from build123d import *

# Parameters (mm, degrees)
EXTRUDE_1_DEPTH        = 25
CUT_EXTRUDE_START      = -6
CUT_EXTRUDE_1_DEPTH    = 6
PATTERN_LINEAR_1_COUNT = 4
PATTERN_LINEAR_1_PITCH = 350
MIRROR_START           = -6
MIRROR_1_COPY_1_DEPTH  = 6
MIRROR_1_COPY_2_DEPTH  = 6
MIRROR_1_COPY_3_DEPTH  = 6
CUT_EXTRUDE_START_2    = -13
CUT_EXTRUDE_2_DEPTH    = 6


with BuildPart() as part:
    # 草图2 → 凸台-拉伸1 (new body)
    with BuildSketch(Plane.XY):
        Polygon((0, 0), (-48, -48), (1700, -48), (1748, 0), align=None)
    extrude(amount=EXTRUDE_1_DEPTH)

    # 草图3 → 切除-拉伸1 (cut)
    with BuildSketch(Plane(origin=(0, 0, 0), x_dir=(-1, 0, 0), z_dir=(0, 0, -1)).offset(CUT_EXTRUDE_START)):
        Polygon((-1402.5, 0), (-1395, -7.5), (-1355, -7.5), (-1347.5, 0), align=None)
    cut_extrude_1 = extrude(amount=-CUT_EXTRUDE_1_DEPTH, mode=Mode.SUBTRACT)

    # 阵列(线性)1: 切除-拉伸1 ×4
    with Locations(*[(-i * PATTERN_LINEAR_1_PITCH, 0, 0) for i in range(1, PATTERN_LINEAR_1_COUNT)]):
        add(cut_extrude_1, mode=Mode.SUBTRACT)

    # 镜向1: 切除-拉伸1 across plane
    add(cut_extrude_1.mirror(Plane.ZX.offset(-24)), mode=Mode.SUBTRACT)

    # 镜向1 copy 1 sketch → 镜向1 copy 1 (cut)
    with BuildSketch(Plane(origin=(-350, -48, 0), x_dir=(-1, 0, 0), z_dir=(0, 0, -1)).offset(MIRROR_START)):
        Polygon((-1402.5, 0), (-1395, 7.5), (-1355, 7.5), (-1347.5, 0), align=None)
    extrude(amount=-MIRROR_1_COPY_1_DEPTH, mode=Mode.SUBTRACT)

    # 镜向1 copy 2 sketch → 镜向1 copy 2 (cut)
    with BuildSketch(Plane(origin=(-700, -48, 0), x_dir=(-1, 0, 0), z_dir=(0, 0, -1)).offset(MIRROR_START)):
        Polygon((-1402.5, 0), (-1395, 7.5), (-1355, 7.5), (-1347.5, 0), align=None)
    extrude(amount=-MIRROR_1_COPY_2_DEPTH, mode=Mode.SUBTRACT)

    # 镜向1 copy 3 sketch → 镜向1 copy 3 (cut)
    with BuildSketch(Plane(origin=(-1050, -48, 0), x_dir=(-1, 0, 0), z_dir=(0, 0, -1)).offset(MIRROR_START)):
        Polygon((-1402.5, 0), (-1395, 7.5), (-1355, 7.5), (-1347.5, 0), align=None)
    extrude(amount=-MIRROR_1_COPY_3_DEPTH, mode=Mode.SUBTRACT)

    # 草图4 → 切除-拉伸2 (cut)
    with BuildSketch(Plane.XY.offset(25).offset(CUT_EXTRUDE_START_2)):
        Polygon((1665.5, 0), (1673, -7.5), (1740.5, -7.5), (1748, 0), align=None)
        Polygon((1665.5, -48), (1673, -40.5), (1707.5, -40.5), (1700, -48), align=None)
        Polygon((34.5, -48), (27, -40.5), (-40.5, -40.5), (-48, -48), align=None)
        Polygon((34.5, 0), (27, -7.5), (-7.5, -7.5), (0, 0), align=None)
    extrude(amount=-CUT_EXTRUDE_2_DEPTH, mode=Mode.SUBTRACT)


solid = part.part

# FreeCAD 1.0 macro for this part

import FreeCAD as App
import Part
import Sketcher
from FreeCAD import Vector
Q = App.Units.Quantity


def add_polygon(sketch, points):
    """Adds a closed chain of lines whose ends are joined by coincident constraints."""
    first, n = sketch.GeometryCount, len(points)
    for a, b in zip(points, points[1:] + points[:1]):
        sketch.addGeometry(Part.LineSegment(App.Vector(*a, 0), App.Vector(*b, 0)), False)
    for i in range(n):
        sketch.addConstraint(Sketcher.Constraint("Coincident", first + i, 2, first + (i + 1) % n, 1))

doc = App.newDocument("Part")
params = doc.addObject("Spreadsheet::Sheet", "Params")
for row, (alias, value) in enumerate([
    ("sketch1_width", "1748 mm"),
    ("pad1_length", "25 mm"),
    ("sketch2_width", "40 mm"),
    ("sketch2_width2", "55 mm"),
    ("pocket1_length", "6 mm"),
    ("linearpattern_pitch", "350 mm"),
    ("sketch3_width", "55 mm"),
    ("sketch3_width2", "40 mm"),
    ("pocket2_length", "6 mm"),
    ("sketch4_width", "55 mm"),
    ("sketch4_width2", "40 mm"),
    ("pocket3_length", "6 mm"),
    ("sketch5_width", "55 mm"),
    ("sketch5_width2", "40 mm"),
    ("pocket4_length", "6 mm"),
    ("sketch6_width", "67.5 mm"),
    ("sketch6_width2", "82.5 mm"),
    ("sketch6_width3", "34.5 mm"),
    ("pocket5_length", "6 mm"),
], start=1):
    params.set(f"A{row}", alias)
    params.set(f"B{row}", "=" + value)
    params.setAlias(f"B{row}", alias)

body = doc.addObject("PartDesign::Body", "Body")

# Sketch on XY plane
sketch1 = body.newObject("Sketcher::SketchObject", "Sketch")
sketch1.AttachmentSupport = (doc.getObject("XY_Plane"), [""])
sketch1.MapMode = "FlatFace"
add_polygon(sketch1, [(0, 0), (-48, -48), (1700, -48), (1748, 0)])  # lines 0-3
sketch1.addConstraint([
    Sketcher.Constraint("Horizontal", 1),
    Sketcher.Constraint("Horizontal", 3),
    Sketcher.Constraint("Coincident", 3, 2, -1, 1),
    Sketcher.Constraint("Parallel", 0, 2),
    Sketcher.Constraint("DistanceX", 1, 1, 1, 2, Q("1748 mm")),
    Sketcher.Constraint("Angle", 0, Q("-135 deg")),
    Sketcher.Constraint("DistanceX", 0, 2, -1, 1, Q("48 mm")),
])
sketch1.setExpression("Constraints[8]", "Params.sketch1_width")
pad1 = body.newObject("PartDesign::Pad", "Pad")
pad1.Profile = sketch1
pad1.setExpression("Length", "Params.pad1_length")

# Sketch on XY plane
sketch2 = body.newObject("Sketcher::SketchObject", "Sketch001")
sketch2.AttachmentSupport = (doc.getObject("XY_Plane"), [""])
sketch2.MapMode = "FlatFace"
sketch2.AttachmentOffset = App.Placement(Vector(0, 0, 6), App.Rotation())
add_polygon(sketch2, [(1402, 0), (1395, -8), (1355, -8), (1348, 0)])  # lines 0-3
sketch2.addConstraint([
    Sketcher.Constraint("Horizontal", 1),
    Sketcher.Constraint("Horizontal", 3),
    Sketcher.Constraint("PointOnObject", 2, 2, -1),
    Sketcher.Constraint("Perpendicular", 0, 2),
    Sketcher.Constraint("Equal", 0, 2),
    Sketcher.Constraint("DistanceX", 1, 2, 1, 1, Q("40 mm")),
    Sketcher.Constraint("DistanceX", 3, 1, 3, 2, Q("55 mm")),
    Sketcher.Constraint("DistanceX", -1, 1, 0, 2, Q("1395 mm")),
])
sketch2.setExpression("Constraints[9]", "Params.sketch2_width")
sketch2.setExpression("Constraints[10]", "Params.sketch2_width2")
pocket1 = body.newObject("PartDesign::Pocket", "Pocket")
pocket1.Profile = sketch2
pocket1.setExpression("Length", "Params.pocket1_length")
pocket1.Reversed = True
doc.recompute()

linearpattern = body.newObject("PartDesign::LinearPattern", "LinearPattern")
linearpattern.Originals = [pocket1]
linearpattern.Direction = (doc.getObject("X_Axis"), [""])
linearpattern.Mode = "offset"
linearpattern.setExpression("Offset", "Params.linearpattern_pitch")
linearpattern.Occurrences = 4
linearpattern.Reversed = True
body.Tip = linearpattern
doc.recompute()

datumplane = body.newObject("PartDesign::Plane", "DatumPlane")
datumplane.AttachmentSupport = (doc.getObject("XZ_Plane"), [""])
datumplane.MapMode = "FlatFace"
datumplane.AttachmentOffset = App.Placement(Vector(0, 0, 24), App.Rotation())
mirrored = body.newObject("PartDesign::Mirrored", "Mirrored")
mirrored.Originals = [pocket1]
mirrored.MirrorPlane = (datumplane, [""])
body.Tip = mirrored

# Sketch on XY plane
sketch3 = body.newObject("Sketcher::SketchObject", "Sketch002")
sketch3.AttachmentSupport = (doc.getObject("XY_Plane"), [""])
sketch3.MapMode = "FlatFace"
sketch3.AttachmentOffset = App.Placement(Vector(0, 0, 6), App.Rotation())
add_polygon(sketch3, [(1045, -40), (1052, -48), (998, -48), (1005, -40)])  # lines 0-3
sketch3.addConstraint([
    Sketcher.Constraint("Horizontal", 1),
    Sketcher.Constraint("Horizontal", 3),
    Sketcher.Constraint("Perpendicular", 0, 2),
    Sketcher.Constraint("Equal", 0, 2),
    Sketcher.Constraint("DistanceX", 1, 2, 1, 1, Q("55 mm")),
    Sketcher.Constraint("DistanceX", 3, 1, 3, 2, Q("40 mm")),
    Sketcher.Constraint("DistanceY", 0, 2, -1, 1, Q("48 mm")),
    Sketcher.Constraint("DistanceX", -1, 1, 2, 2, Q("1005 mm")),
])
sketch3.setExpression("Constraints[8]", "Params.sketch3_width")
sketch3.setExpression("Constraints[9]", "Params.sketch3_width2")
pocket2 = body.newObject("PartDesign::Pocket", "Pocket001")
pocket2.Profile = sketch3
pocket2.setExpression("Length", "Params.pocket2_length")
pocket2.Reversed = True

# Sketch on XY plane
sketch4 = body.newObject("Sketcher::SketchObject", "Sketch003")
sketch4.AttachmentSupport = (doc.getObject("XY_Plane"), [""])
sketch4.MapMode = "FlatFace"
sketch4.AttachmentOffset = App.Placement(Vector(0, 0, 6), App.Rotation())
add_polygon(sketch4, [(695, -40), (702, -48), (648, -48), (655, -40)])  # lines 0-3
sketch4.addConstraint([
    Sketcher.Constraint("Horizontal", 1),
    Sketcher.Constraint("Horizontal", 3),
    Sketcher.Constraint("Perpendicular", 0, 2),
    Sketcher.Constraint("Equal", 0, 2),
    Sketcher.Constraint("DistanceX", 1, 2, 1, 1, Q("55 mm")),
    Sketcher.Constraint("DistanceX", 3, 1, 3, 2, Q("40 mm")),
    Sketcher.Constraint("DistanceY", 0, 2, -1, 1, Q("48 mm")),
    Sketcher.Constraint("DistanceX", -1, 1, 2, 2, Q("655 mm")),
])
sketch4.setExpression("Constraints[8]", "Params.sketch4_width")
sketch4.setExpression("Constraints[9]", "Params.sketch4_width2")
pocket3 = body.newObject("PartDesign::Pocket", "Pocket002")
pocket3.Profile = sketch4
pocket3.setExpression("Length", "Params.pocket3_length")
pocket3.Reversed = True

# Sketch on XY plane
sketch5 = body.newObject("Sketcher::SketchObject", "Sketch004")
sketch5.AttachmentSupport = (doc.getObject("XY_Plane"), [""])
sketch5.MapMode = "FlatFace"
sketch5.AttachmentOffset = App.Placement(Vector(0, 0, 6), App.Rotation())
add_polygon(sketch5, [(345, -40), (352, -48), (298, -48), (305, -40)])  # lines 0-3
sketch5.addConstraint([
    Sketcher.Constraint("Horizontal", 1),
    Sketcher.Constraint("Horizontal", 3),
    Sketcher.Constraint("Perpendicular", 0, 2),
    Sketcher.Constraint("Equal", 0, 2),
    Sketcher.Constraint("DistanceX", 1, 2, 1, 1, Q("55 mm")),
    Sketcher.Constraint("DistanceX", 3, 1, 3, 2, Q("40 mm")),
    Sketcher.Constraint("DistanceY", 0, 2, -1, 1, Q("48 mm")),
    Sketcher.Constraint("DistanceX", -1, 1, 2, 2, Q("305 mm")),
])
sketch5.setExpression("Constraints[8]", "Params.sketch5_width")
sketch5.setExpression("Constraints[9]", "Params.sketch5_width2")
pocket4 = body.newObject("PartDesign::Pocket", "Pocket003")
pocket4.Profile = sketch5
pocket4.setExpression("Length", "Params.pocket4_length")
pocket4.Reversed = True

# Sketch on XY plane
sketch6 = body.newObject("Sketcher::SketchObject", "Sketch005")
sketch6.AttachmentSupport = (doc.getObject("XY_Plane"), [""])
sketch6.MapMode = "FlatFace"
sketch6.AttachmentOffset = App.Placement(Vector(0, 0, 12), App.Rotation())
add_polygon(sketch6, [(1666, 0), (1673, -8), (1740, -8), (1748, 0)])  # lines 0-3
add_polygon(sketch6, [(1673, -40), (1666, -48), (1700, -48), (1708, -40)])  # lines 4-7
add_polygon(sketch6, [(34, -48), (27, -40), (-40, -40), (-48, -48)])  # lines 8-11
add_polygon(sketch6, [(27, -8), (34, 0), (0, 0), (-8, -8)])  # lines 12-15
sketch6.addConstraint([
    Sketcher.Constraint("Horizontal", 1),
    Sketcher.Constraint("Horizontal", 3),
    Sketcher.Constraint("Horizontal", 5),
    Sketcher.Constraint("Horizontal", 7),
    Sketcher.Constraint("Horizontal", 9),
    Sketcher.Constraint("Horizontal", 11),
    Sketcher.Constraint("Horizontal", 13),
    Sketcher.Constraint("Horizontal", 15),
    Sketcher.Constraint("Coincident", 13, 2, -1, 1),
    Sketcher.Constraint("PointOnObject", 2, 2, -1),
    Sketcher.Constraint("Perpendicular", 0, 2),
    Sketcher.Constraint("Parallel", 2, 4),
    Sketcher.Constraint("Parallel", 4, 6),
    Sketcher.Constraint("Perpendicular", 6, 8),
    Sketcher.Constraint("Perpendicular", 8, 10),
    Sketcher.Constraint("Parallel", 10, 12),
    Sketcher.Constraint("Parallel", 12, 14),
    Sketcher.Constraint("Horizontal", 7, 2, 8, 2),
    Sketcher.Constraint("Horizontal", 5, 2, 10, 2),
    Sketcher.Constraint("Horizontal", 1, 2, 14, 2),
    Sketcher.Constraint("Vertical", 3, 2, 4, 2),
    Sketcher.Constraint("Vertical", 0, 2, 7, 2),
    Sketcher.Constraint("Vertical", 11, 2, 12, 2),
    Sketcher.Constraint("Vertical", 8, 2, 15, 2),
    Sketcher.Constraint("Equal", 1, 9),
    Sketcher.Constraint("Equal", 7, 13),
    Sketcher.Constraint("DistanceX", 1, 1, 1, 2, Q("67.5 mm")),
    Sketcher.Constraint("DistanceX", 3, 2, 3, 1, Q("82.5 mm")),
    Sketcher.Constraint("DistanceX", 5, 1, 5, 2, Q("34.5 mm")),
    Sketcher.Constraint("DistanceX", -1, 1, 0, 2, Q("1673 mm")),
    Sketcher.Constraint("DistanceY", 4, 2, -1, 1, Q("48 mm")),
])
sketch6.setExpression("Constraints[42]", "Params.sketch6_width")
sketch6.setExpression("Constraints[43]", "Params.sketch6_width2")
sketch6.setExpression("Constraints[44]", "Params.sketch6_width3")
pocket5 = body.newObject("PartDesign::Pocket", "Pocket004")
pocket5.Profile = sketch6
pocket5.setExpression("Length", "Params.pocket5_length")

doc.recompute()
